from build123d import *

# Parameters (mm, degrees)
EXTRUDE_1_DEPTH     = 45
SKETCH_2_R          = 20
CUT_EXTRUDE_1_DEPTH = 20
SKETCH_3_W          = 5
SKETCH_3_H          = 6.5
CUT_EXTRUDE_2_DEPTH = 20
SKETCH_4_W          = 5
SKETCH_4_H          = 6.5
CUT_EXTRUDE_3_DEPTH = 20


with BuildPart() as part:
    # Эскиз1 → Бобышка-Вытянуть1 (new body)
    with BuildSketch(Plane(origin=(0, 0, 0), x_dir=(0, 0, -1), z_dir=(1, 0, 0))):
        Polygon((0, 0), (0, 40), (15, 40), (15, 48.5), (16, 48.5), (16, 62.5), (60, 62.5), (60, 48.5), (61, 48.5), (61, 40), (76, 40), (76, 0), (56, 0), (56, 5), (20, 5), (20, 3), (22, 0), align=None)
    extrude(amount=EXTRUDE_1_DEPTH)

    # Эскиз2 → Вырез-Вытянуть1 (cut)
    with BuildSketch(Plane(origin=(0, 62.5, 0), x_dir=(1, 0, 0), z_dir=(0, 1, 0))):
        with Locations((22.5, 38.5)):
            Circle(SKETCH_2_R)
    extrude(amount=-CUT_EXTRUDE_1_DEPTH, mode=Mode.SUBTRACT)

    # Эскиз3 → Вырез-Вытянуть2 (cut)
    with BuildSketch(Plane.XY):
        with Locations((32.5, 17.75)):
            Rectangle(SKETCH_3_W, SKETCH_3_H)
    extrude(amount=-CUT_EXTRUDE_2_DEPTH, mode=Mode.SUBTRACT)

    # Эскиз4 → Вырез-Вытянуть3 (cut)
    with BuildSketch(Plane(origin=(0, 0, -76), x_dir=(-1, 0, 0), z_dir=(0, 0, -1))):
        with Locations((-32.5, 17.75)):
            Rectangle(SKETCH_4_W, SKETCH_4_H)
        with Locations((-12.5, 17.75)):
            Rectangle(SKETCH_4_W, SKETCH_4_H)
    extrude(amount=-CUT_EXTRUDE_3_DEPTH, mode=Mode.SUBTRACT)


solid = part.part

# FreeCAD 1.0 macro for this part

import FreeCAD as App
import Part
import Sketcher

V = App.Vector
Q = App.Units.Quantity


def add_polygon(sketch, points):
    """Adds a closed chain of lines whose ends are joined by coincident constraints."""
    first, n = sketch.GeometryCount, len(points)
    for a, b in zip(points, points[1:] + points[:1]):
        sketch.addGeometry(Part.LineSegment(App.Vector(*a, 0), App.Vector(*b, 0)), False)
    for i in range(n):
        sketch.addConstraint(Sketcher.Constraint("Coincident", first + i, 2, first + (i + 1) % n, 1))

doc = App.newDocument("Part")
params = doc.addObject("Spreadsheet::Sheet", "Params")
for row, (alias, value) in enumerate([
    ("sketch1_width", "40 mm"),
    ("sketch1_width2", "2 mm"),
    ("sketch1_width3", "5 mm"),
    ("sketch1_width4", "14 mm"),
    ("sketch1_height", "22 mm"),
    ("pad1_length", "45 mm"),
    ("sketch2_diameter", "40 mm"),
    ("pocket1_length", "20 mm"),
    ("sketch3_width", "5 mm"),
    ("sketch3_height", "6.5 mm"),
    ("pocket2_length", "20 mm"),
    ("sketch4_width", "5 mm"),
    ("sketch4_height", "6.5 mm"),
    ("pocket3_length", "20 mm"),
], start=1):
    params.set(f"A{row}", alias)
    params.set(f"B{row}", "=" + value)
    params.setAlias(f"B{row}", alias)

body = doc.addObject("PartDesign::Body", "Body")

# Sketch on YZ plane
sketch1 = doc.addObject("Sketcher::SketchObject", "Sketch")
body.addObject(sketch1)
sketch1.AttachmentSupport = (doc.YZ_Plane, [""])
sketch1.MapMode = "FlatFace"
add_polygon(sketch1, [(40, 0), (0, 0), (0, -22), (3, -20), (5, -20), (5, -56), (0, -56), (0, -76), (40, -76), (40, -61), (48.5, -61), (48.5, -60), (62.5, -60), (62.5, -16), (48.5, -16), (48.5, -15), (40, -15)])  # lines 0-16
sketch1.addConstraint([
    Sketcher.Constraint("Horizontal", 0),
    Sketcher.Constraint("Vertical", 1),
    Sketcher.Constraint("Horizontal", 3),
    Sketcher.Constraint("Vertical", 4),
    Sketcher.Constraint("Horizontal", 5),
    Sketcher.Constraint("Vertical", 6),
    Sketcher.Constraint("Horizontal", 7),
    Sketcher.Constraint("Vertical", 8),
    Sketcher.Constraint("Horizontal", 9),
    Sketcher.Constraint("Vertical", 10),
    Sketcher.Constraint("Horizontal", 11),
    Sketcher.Constraint("Vertical", 12),
    Sketcher.Constraint("Horizontal", 13),
    Sketcher.Constraint("Vertical", 14),
    Sketcher.Constraint("Horizontal", 15),
    Sketcher.Constraint("Vertical", 16),
    Sketcher.Constraint("Coincident", 0, 2, -1, 1),
    Sketcher.Constraint("PointOnObject", 5, 2, -2),
    Sketcher.Constraint("Vertical", 10, 2, 13, 2),
    Sketcher.Constraint("Vertical", 8, 2, 15, 2),
    Sketcher.Constraint("Equal", 10, 14),
    Sketcher.Constraint("Equal", 8, 16),
    Sketcher.Constraint("DistanceX", 0, 2, 0, 1, Q("40 mm")),
    Sketcher.Constraint("DistanceX", 3, 1, 3, 2, Q("2 mm")),
    Sketcher.Constraint("DistanceX", 5, 2, 5, 1, Q("5 mm")),
    Sketcher.Constraint("DistanceX", 11, 1, 11, 2, Q("14 mm")),
    Sketcher.Constraint("DistanceY", 1, 2, 1, 1, Q("22 mm")),
    Sketcher.Constraint("DistanceY", 4, 2, 4, 1, Q("36 mm")),
    Sketcher.Constraint("DistanceY", 6, 2, 6, 1, Q("20 mm")),
    Sketcher.Constraint("DistanceY", 8, 1, 8, 2, Q("15 mm")),
    Sketcher.Constraint("DistanceY", 10, 1, 10, 2, Q("1 mm")),
    Sketcher.Constraint("DistanceY", 12, 1, 12, 2, Q("44 mm")),
    Sketcher.Constraint("DistanceX", 9, 1, 9, 2, Q("8.5 mm")),
])
sketch1.setExpression("Constraints[39]", "Params.sketch1_width")
sketch1.setExpression("Constraints[40]", "Params.sketch1_width2")
sketch1.setExpression("Constraints[41]", "Params.sketch1_width3")
sketch1.setExpression("Constraints[42]", "Params.sketch1_width4")
sketch1.setExpression("Constraints[43]", "Params.sketch1_height")
pad1 = doc.addObject("PartDesign::Pad", "Pad")
body.addObject(pad1)
pad1.Profile = sketch1
pad1.setExpression("Length", "Params.pad1_length")

# Sketch on XZ plane
sketch2 = doc.addObject("Sketcher::SketchObject", "Sketch001")
body.addObject(sketch2)
sketch2.AttachmentSupport = (doc.XZ_Plane, [""])
sketch2.MapMode = "FlatFace"
sketch2.AttachmentOffset = App.Placement(V(0, 0, -62.5), App.Rotation())
sketch2.addGeometry(Part.Circle(V(22, -38, 0), V(0, 0, 1), 20), False)
sketch2.addConstraint([
    Sketcher.Constraint("Diameter", 0, Q("40 mm")),
    Sketcher.Constraint("DistanceX", -1, 1, 0, 3, Q("22.5 mm")),
    Sketcher.Constraint("DistanceY", 0, 3, -1, 1, Q("38.5 mm")),
])
sketch2.setExpression("Constraints[0]", "Params.sketch2_diameter")
pocket1 = doc.addObject("PartDesign::Pocket", "Pocket")
body.addObject(pocket1)
pocket1.Profile = sketch2
pocket1.setExpression("Length", "Params.pocket1_length")
pocket1.Reversed = True

# Sketch on XY plane
sketch3 = doc.addObject("Sketcher::SketchObject", "Sketch002")
body.addObject(sketch3)
sketch3.AttachmentSupport = (doc.XY_Plane, [""])
sketch3.MapMode = "FlatFace"
add_polygon(sketch3, [(30, 21), (30, 14), (35, 14), (35, 21)])  # lines 0-3
sketch3.addConstraint([
    Sketcher.Constraint("Vertical", 0),
    Sketcher.Constraint("Horizontal", 1),
    Sketcher.Constraint("Vertical", 2),
    Sketcher.Constraint("Horizontal", 3),
    Sketcher.Constraint("DistanceX", 1, 1, 1, 2, Q("5 mm")),
    Sketcher.Constraint("DistanceY", 0, 2, 0, 1, Q("6.5 mm")),
    Sketcher.Constraint("DistanceX", -1, 1, 0, 2, Q("30 mm")),
    Sketcher.Constraint("DistanceY", -1, 1, 2, 2, Q("21 mm")),
])
sketch3.setExpression("Constraints[8]", "Params.sketch3_width")
sketch3.setExpression("Constraints[9]", "Params.sketch3_height")
pocket2 = doc.addObject("PartDesign::Pocket", "Pocket001")
body.addObject(pocket2)
pocket2.Profile = sketch3
pocket2.setExpression("Length", "Params.pocket2_length")

# Sketch on XY plane
sketch4 = doc.addObject("Sketcher::SketchObject", "Sketch003")
body.addObject(sketch4)
sketch4.AttachmentSupport = (doc.XY_Plane, [""])
sketch4.MapMode = "FlatFace"
sketch4.AttachmentOffset = App.Placement(V(0, 0, -76), App.Rotation())
add_polygon(sketch4, [(35, 21), (35, 14), (30, 14), (30, 21)])  # lines 0-3
add_polygon(sketch4, [(15, 21), (15, 14), (10, 14), (10, 21)])  # lines 4-7
sketch4.addConstraint([
    Sketcher.Constraint("Vertical", 0),
    Sketcher.Constraint("Horizontal", 1),
    Sketcher.Constraint("Vertical", 2),
    Sketcher.Constraint("Horizontal", 3),
    Sketcher.Constraint("Vertical", 4),
    Sketcher.Constraint("Horizontal", 5),
    Sketcher.Constraint("Vertical", 6),
    Sketcher.Constraint("Horizontal", 7),
    Sketcher.Constraint("Horizontal", 1, 2, 4, 2),
    Sketcher.Constraint("Horizontal", 3, 2, 6, 2),
    Sketcher.Constraint("Equal", 3, 5),
    Sketcher.Constraint("DistanceX", 1, 2, 1, 1, Q("5 mm")),
    Sketcher.Constraint("DistanceY", 0, 2, 0, 1, Q("6.5 mm")),
    Sketcher.Constraint("DistanceX", -1, 1, 0, 2, Q("35 mm")),
    Sketcher.Constraint("DistanceY", -1, 1, 2, 2, Q("21 mm")),
    Sketcher.Constraint("DistanceX", -1, 1, 4, 2, Q("15 mm")),
])
sketch4.setExpression("Constraints[19]", "Params.sketch4_width")
sketch4.setExpression("Constraints[20]", "Params.sketch4_height")
pocket3 = doc.addObject("PartDesign::Pocket", "Pocket002")
body.addObject(pocket3)
pocket3.Profile = sketch4
pocket3.setExpression("Length", "Params.pocket3_length")
pocket3.Reversed = True

doc.recompute()
